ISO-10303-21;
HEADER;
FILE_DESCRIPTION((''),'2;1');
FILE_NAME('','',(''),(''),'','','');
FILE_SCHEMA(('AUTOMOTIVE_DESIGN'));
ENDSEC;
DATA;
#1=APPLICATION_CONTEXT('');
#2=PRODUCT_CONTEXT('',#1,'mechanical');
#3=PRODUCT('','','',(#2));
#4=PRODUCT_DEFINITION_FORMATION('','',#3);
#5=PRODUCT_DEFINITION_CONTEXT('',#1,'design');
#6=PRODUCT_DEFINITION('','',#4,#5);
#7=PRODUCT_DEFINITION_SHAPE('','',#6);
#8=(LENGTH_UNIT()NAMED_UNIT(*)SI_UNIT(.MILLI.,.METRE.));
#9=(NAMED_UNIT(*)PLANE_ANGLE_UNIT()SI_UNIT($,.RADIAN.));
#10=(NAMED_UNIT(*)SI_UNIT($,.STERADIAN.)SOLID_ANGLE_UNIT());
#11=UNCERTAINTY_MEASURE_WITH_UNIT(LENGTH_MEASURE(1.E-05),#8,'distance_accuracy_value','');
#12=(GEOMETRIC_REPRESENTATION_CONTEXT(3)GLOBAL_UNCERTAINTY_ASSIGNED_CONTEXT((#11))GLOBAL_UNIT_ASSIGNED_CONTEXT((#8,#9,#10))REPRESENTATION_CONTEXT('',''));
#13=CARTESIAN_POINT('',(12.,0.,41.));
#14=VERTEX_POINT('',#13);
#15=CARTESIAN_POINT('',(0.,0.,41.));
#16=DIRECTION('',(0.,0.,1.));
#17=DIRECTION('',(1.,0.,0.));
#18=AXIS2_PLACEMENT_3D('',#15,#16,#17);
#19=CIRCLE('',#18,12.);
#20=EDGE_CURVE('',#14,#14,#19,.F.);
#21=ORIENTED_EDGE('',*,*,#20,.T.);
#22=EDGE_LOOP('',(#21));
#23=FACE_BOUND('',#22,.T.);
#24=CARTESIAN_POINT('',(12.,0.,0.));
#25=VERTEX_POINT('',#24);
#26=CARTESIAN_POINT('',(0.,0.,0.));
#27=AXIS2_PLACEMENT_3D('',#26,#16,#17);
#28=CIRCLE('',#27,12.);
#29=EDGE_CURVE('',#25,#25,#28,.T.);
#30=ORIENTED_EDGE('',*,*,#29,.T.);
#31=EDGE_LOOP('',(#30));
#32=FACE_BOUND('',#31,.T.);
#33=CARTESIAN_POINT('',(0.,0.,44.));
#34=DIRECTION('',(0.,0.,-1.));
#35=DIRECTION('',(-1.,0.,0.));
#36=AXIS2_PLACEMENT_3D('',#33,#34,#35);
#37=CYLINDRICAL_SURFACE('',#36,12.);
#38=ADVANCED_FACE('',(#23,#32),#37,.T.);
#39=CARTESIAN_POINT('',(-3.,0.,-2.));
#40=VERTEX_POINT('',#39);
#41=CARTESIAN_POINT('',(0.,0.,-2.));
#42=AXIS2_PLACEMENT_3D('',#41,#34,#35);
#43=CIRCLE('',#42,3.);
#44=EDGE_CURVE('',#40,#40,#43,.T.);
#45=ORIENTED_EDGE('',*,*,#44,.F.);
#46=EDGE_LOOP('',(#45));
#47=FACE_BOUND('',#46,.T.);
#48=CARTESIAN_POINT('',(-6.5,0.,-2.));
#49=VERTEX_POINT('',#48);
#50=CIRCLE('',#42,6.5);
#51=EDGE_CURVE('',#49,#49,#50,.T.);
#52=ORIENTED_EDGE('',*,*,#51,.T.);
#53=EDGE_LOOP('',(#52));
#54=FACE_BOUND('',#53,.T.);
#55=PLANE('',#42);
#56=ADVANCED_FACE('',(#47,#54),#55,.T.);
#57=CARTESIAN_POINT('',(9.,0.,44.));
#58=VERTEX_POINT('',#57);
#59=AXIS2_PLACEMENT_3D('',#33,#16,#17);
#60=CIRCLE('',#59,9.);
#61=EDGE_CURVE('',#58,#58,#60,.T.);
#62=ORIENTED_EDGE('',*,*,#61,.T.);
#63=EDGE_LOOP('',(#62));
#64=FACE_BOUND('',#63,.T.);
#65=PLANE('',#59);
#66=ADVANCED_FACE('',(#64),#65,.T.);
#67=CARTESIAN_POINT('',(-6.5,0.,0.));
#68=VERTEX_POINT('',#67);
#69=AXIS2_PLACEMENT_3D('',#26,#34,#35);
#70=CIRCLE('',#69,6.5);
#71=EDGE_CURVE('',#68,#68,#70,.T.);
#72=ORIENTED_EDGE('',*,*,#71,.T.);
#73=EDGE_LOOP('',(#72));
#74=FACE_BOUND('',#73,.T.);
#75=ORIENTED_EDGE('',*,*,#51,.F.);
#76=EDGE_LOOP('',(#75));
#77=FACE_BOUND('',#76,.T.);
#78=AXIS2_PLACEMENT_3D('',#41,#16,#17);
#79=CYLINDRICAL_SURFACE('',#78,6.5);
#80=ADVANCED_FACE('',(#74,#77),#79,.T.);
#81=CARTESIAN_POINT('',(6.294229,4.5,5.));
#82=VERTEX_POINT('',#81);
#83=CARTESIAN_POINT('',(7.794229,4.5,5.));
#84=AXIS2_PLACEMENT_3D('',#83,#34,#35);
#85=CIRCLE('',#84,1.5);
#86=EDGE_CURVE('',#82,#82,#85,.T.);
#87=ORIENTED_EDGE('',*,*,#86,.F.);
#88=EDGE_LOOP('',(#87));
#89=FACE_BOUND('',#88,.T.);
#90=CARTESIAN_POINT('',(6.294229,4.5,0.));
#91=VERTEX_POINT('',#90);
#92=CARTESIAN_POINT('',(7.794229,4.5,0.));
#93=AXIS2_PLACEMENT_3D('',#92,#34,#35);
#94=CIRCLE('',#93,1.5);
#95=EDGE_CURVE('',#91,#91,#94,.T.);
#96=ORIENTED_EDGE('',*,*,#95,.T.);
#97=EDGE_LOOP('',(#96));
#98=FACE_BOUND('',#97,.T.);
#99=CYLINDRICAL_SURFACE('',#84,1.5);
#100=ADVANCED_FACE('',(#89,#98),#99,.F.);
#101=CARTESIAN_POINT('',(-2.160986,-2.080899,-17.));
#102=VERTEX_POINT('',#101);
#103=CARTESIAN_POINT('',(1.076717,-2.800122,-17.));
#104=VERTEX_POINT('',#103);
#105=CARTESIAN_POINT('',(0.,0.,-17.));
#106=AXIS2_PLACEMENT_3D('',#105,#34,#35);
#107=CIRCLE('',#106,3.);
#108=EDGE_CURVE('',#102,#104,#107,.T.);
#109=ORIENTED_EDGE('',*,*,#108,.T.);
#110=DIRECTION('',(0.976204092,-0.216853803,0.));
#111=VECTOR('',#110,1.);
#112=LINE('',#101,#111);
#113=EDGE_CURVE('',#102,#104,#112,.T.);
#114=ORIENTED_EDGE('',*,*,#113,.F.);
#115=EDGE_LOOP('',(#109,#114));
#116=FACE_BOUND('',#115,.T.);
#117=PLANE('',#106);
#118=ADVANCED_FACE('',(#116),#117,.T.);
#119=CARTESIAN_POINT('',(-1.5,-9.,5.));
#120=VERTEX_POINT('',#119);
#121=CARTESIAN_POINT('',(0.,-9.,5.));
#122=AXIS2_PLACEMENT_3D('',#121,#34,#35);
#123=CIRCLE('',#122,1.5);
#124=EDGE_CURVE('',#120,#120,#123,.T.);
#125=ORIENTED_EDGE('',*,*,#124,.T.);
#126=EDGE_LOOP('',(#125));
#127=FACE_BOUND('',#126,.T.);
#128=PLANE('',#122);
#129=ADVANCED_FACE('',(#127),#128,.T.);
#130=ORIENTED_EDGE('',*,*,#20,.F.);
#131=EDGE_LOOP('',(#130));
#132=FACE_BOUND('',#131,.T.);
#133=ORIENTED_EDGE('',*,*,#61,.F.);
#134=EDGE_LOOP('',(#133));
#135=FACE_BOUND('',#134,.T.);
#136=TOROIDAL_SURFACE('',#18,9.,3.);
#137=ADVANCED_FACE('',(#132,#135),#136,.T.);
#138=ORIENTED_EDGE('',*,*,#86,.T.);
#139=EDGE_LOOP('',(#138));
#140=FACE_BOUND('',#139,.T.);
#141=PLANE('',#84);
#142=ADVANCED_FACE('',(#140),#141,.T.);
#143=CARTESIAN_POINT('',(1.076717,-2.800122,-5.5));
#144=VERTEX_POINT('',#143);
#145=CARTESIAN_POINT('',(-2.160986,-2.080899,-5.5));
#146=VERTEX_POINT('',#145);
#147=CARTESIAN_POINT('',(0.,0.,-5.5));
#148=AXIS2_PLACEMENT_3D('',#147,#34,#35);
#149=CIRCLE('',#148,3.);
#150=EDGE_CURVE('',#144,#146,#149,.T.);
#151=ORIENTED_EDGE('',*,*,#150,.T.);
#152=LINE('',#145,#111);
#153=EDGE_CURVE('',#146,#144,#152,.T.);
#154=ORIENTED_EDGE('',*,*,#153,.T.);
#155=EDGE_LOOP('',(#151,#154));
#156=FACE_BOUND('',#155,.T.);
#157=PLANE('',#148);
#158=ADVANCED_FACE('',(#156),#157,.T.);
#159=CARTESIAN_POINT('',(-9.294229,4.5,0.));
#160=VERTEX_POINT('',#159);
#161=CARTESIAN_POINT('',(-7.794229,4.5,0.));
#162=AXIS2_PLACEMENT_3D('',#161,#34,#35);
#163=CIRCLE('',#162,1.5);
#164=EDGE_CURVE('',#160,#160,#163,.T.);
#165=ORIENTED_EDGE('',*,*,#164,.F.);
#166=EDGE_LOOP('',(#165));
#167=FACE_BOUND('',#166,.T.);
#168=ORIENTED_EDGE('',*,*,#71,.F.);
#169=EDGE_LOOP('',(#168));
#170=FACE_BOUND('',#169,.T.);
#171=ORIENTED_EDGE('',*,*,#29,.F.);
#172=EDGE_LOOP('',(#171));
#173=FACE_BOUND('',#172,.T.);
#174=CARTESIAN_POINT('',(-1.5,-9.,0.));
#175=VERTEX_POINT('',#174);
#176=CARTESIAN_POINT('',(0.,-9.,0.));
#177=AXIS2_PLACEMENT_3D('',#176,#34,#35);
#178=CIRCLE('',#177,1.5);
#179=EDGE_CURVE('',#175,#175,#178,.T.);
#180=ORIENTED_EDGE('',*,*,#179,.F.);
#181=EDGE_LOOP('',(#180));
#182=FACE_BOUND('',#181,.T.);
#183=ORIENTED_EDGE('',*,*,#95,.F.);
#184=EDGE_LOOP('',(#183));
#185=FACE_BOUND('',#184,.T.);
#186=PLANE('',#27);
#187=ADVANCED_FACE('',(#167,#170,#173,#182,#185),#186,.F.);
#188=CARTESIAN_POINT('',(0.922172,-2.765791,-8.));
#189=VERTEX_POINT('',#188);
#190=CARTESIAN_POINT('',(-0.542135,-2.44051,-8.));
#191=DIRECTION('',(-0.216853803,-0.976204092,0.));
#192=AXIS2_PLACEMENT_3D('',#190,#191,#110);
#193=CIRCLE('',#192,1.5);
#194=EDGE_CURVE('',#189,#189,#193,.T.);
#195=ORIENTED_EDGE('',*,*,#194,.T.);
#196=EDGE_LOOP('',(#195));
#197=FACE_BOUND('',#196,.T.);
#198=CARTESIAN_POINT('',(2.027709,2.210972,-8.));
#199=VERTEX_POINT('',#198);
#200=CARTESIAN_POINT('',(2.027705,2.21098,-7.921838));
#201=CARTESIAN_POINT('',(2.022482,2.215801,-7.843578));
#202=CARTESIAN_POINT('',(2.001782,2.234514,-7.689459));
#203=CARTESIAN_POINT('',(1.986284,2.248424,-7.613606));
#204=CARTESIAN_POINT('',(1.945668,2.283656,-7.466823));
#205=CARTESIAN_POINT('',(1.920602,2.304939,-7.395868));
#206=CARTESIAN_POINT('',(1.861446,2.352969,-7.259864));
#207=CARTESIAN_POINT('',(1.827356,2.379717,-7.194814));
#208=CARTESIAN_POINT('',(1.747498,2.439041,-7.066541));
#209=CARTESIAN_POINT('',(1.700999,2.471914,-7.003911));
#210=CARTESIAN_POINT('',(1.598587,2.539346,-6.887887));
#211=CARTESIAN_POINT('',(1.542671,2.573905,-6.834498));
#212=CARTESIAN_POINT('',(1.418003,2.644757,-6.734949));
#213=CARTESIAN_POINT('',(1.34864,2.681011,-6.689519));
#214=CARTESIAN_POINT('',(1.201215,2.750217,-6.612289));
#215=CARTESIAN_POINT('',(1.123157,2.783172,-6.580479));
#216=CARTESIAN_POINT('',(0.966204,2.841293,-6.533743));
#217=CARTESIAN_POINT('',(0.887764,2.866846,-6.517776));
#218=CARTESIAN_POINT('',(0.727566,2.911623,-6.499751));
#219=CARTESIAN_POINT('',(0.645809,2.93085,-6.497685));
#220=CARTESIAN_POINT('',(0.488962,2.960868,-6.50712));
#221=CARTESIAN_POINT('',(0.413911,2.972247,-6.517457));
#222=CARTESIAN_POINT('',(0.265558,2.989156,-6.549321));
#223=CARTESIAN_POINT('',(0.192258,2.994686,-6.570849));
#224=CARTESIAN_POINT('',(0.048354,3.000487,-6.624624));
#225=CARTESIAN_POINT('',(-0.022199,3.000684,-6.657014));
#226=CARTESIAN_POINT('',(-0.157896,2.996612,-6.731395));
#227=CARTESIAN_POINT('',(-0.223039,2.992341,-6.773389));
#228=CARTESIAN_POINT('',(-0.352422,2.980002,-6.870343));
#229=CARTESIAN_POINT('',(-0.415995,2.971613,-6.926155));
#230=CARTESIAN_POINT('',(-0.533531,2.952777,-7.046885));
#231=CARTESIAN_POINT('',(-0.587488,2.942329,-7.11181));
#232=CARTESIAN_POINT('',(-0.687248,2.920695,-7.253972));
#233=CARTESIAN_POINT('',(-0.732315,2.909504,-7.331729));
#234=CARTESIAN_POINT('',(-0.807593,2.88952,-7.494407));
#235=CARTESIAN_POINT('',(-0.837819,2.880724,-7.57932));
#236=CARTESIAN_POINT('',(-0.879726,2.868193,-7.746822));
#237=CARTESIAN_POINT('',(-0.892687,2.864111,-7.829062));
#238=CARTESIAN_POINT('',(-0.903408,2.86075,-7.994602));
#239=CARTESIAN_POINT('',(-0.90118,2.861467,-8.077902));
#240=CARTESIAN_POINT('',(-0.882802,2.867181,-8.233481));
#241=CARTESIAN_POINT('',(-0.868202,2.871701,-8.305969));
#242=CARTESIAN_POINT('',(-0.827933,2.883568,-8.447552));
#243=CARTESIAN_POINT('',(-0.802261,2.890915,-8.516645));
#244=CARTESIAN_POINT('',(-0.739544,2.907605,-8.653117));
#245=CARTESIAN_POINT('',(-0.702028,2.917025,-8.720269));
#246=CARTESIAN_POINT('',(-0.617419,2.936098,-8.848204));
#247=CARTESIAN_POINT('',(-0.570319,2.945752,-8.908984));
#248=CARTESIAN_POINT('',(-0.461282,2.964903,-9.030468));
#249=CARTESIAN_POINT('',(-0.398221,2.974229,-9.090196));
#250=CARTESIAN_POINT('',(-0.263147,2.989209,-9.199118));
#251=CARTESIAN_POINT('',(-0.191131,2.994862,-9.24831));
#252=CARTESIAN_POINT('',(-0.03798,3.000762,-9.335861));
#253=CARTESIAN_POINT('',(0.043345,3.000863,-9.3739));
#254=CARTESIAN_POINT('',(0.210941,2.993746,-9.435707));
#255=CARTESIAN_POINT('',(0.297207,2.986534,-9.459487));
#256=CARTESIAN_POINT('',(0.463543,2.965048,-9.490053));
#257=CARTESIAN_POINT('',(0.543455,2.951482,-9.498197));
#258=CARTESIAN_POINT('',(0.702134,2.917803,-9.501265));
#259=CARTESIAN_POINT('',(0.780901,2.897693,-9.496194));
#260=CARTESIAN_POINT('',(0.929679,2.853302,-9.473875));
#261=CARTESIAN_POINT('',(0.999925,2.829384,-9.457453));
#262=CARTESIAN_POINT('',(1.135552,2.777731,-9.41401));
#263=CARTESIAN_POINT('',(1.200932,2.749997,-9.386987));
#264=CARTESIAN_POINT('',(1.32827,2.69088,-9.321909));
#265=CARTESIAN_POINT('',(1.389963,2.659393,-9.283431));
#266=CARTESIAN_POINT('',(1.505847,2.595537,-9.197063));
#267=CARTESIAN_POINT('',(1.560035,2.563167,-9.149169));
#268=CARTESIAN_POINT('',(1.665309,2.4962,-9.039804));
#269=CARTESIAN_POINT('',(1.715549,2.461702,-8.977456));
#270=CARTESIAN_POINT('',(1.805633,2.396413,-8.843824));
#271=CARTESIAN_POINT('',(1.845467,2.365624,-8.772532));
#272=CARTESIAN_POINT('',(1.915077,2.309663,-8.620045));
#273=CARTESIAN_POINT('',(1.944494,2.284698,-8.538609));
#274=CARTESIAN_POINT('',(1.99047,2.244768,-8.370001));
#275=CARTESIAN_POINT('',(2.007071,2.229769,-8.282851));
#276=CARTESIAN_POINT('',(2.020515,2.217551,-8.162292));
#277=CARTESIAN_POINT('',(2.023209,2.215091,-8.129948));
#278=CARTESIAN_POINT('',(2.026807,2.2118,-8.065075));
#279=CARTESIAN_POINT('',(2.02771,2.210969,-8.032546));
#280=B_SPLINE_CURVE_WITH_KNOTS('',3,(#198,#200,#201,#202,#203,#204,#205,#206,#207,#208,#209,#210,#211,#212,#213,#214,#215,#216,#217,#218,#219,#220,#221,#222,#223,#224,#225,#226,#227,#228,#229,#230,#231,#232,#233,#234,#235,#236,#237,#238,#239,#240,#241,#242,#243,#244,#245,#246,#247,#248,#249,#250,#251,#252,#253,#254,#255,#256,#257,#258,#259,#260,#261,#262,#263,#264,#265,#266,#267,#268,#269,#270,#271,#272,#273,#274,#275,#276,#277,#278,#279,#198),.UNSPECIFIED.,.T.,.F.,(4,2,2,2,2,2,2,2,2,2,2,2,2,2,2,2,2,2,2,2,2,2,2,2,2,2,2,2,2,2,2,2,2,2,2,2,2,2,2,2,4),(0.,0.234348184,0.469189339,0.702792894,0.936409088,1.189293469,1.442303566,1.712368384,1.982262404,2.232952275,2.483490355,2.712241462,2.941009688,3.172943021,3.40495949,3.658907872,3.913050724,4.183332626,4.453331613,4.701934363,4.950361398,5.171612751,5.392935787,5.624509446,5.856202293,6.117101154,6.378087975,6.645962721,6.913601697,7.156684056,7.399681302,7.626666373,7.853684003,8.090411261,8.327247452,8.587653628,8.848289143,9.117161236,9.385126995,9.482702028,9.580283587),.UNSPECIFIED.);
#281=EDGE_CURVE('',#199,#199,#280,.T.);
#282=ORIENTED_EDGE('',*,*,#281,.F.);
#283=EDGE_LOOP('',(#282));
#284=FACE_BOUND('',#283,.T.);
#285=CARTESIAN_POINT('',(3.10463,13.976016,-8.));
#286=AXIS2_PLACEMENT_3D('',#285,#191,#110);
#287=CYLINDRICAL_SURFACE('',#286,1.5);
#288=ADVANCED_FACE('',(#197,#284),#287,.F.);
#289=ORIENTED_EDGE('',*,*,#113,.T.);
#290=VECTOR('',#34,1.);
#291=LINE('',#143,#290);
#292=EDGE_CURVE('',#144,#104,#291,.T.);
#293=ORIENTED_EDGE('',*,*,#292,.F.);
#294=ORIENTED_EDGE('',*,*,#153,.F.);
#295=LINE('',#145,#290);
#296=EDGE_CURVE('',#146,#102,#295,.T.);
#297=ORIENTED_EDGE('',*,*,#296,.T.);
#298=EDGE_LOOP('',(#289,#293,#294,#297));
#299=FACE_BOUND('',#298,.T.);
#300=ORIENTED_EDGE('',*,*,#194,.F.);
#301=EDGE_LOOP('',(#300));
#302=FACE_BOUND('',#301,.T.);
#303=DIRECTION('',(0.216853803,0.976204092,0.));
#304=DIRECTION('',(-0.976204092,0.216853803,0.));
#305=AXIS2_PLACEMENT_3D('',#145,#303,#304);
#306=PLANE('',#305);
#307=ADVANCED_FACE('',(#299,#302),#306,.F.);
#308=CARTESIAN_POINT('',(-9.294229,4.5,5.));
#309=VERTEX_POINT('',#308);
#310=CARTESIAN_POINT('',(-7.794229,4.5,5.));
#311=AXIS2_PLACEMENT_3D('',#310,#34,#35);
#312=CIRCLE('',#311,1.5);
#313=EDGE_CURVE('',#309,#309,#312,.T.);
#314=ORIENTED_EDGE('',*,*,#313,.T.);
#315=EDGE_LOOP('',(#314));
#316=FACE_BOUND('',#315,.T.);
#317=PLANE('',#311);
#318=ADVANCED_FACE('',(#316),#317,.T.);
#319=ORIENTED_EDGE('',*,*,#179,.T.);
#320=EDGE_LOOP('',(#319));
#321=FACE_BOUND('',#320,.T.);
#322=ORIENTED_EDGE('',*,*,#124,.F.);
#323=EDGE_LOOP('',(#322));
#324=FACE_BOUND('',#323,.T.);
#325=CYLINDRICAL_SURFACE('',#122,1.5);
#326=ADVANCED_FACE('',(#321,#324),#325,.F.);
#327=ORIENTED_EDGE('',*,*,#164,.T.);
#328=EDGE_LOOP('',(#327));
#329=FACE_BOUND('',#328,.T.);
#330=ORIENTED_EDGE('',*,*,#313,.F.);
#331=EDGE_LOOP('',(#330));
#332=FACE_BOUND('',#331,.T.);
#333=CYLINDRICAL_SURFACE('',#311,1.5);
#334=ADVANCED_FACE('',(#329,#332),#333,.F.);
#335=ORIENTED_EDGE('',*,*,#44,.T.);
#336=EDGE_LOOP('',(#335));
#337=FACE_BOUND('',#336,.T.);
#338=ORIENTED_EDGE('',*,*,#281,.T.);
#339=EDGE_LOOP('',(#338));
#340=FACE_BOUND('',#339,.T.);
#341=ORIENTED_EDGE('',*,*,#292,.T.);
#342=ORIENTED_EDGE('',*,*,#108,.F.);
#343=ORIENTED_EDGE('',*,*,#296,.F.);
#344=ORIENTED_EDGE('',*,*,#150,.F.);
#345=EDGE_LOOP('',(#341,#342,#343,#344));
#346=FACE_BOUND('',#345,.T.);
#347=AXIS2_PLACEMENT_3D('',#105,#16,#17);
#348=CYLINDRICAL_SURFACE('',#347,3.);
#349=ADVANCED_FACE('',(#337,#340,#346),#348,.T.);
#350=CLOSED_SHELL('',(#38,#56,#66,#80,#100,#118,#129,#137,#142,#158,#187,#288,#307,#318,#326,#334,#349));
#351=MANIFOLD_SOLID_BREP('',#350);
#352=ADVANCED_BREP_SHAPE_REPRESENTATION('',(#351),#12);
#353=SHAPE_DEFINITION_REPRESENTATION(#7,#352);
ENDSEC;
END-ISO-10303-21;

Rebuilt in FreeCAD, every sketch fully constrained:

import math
import FreeCAD as App
import Part
import Sketcher
from FreeCAD import Vector
Q = App.Units.Quantity


def edges_at(feature, points):
    """Names of the edges that pass closest to the given points."""
    edges = feature.Shape.Edges
    near = lambda p: min(range(len(edges)), key=lambda i: edges[i].distToShape(Part.Vertex(*p))[0])
    return sorted({f"Edge{near(p) + 1}" for p in points})

doc = App.newDocument("Part")
body = doc.addObject("PartDesign::Body", "Body")

# Sketch on XY plane
sketch1 = doc.addObject("Sketcher::SketchObject", "Sketch")
body.addObject(sketch1)
sketch1.AttachmentSupport = (doc.XY_Plane, [""])
sketch1.MapMode = "FlatFace"
sketch1.addGeometry(Part.Circle(Vector(0, 0, 0), Vector(0, 0, 1), 12), False)
sketch1.addConstraint([
    Sketcher.Constraint("Coincident", 0, 3, -1, 1),
    Sketcher.Constraint("Diameter", 0, Q("24 mm")),
])
pad1 = doc.addObject("PartDesign::Pad", "Pad")
body.addObject(pad1)
pad1.Profile = sketch1
pad1.Length = 44

# Sketch on XY plane
sketch2 = doc.addObject("Sketcher::SketchObject", "Sketch001")
body.addObject(sketch2)
sketch2.AttachmentSupport = (doc.XY_Plane, [""])
sketch2.MapMode = "FlatFace"
sketch2.addGeometry(Part.Circle(Vector(0, 0, 0), Vector(0, 0, 1), 6), False)
sketch2.addConstraint([
    Sketcher.Constraint("Coincident", 0, 3, -1, 1),
    Sketcher.Constraint("Diameter", 0, Q("13 mm")),
])
pad2 = doc.addObject("PartDesign::Pad", "Pad001")
body.addObject(pad2)
pad2.Profile = sketch2
pad2.Length = 2
pad2.Reversed = True

# Sketch on XY plane
sketch3 = doc.addObject("Sketcher::SketchObject", "Sketch002")
body.addObject(sketch3)
sketch3.AttachmentSupport = (doc.XY_Plane, [""])
sketch3.MapMode = "FlatFace"
sketch3.AttachmentOffset = App.Placement(Vector(0, 0, -2), App.Rotation())
sketch3.addGeometry(Part.Circle(Vector(0, 0, 0), Vector(0, 0, 1), 3), False)
sketch3.addConstraint([
    Sketcher.Constraint("Coincident", 0, 3, -1, 1),
    Sketcher.Constraint("Diameter", 0, Q("6 mm")),
])
pad3 = doc.addObject("PartDesign::Pad", "Pad002")
body.addObject(pad3)
pad3.Profile = sketch3
pad3.Length = 15
pad3.Reversed = True

# Sketch on XY plane
sketch4 = doc.addObject("Sketcher::SketchObject", "Sketch003")
body.addObject(sketch4)
sketch4.AttachmentSupport = (doc.XY_Plane, [""])
sketch4.MapMode = "FlatFace"
sketch4.addGeometry([
    Part.Circle(Vector(0, -9, 0), Vector(0, 0, 1), 1.5),
    Part.Circle(Vector(7.8, 4.5, 0), Vector(0, 0, 1), 1.5),
    Part.Circle(Vector(-7.8, 4.5, 0), Vector(0, 0, 1), 1.5),
], False)
sketch4.addConstraint([
    Sketcher.Constraint("Equal", 0, 1),
    Sketcher.Constraint("Equal", 1, 2),
    Sketcher.Constraint("Symmetric", 1, 3, 2, 3, -2),
    Sketcher.Constraint("PointOnObject", 0, 3, -2),
    Sketcher.Constraint("Diameter", 0, Q("3 mm")),
    Sketcher.Constraint("DistanceY", 0, 3, -1, 1, Q("9 mm")),
    Sketcher.Constraint("DistanceY", -1, 1, 1, 3, Q("4.5 mm")),
    Sketcher.Constraint("DistanceX", -1, 1, 1, 3, Q("7.794229 mm")),
])
pocket1 = doc.addObject("PartDesign::Pocket", "Pocket")
body.addObject(pocket1)
pocket1.Profile = sketch4
pocket1.Length = 5
pocket1.Reversed = True

# Sketch on XY plane
sketch5 = doc.addObject("Sketcher::SketchObject", "Sketch004")
body.addObject(sketch5)
sketch5.AttachmentSupport = (doc.XY_Plane, [""])
sketch5.MapMode = "FlatFace"
sketch5.AttachmentOffset = App.Placement(Vector(0, 0, -5.5), App.Rotation())
sketch5.addGeometry([
    Part.LineSegment(Vector(-2.2, -2.1, 0), Vector(1.1, -2.8, 0)),
    Part.ArcOfCircle(Part.Circle(Vector(0, 0, 0), Vector(0, 0, 1), 3), math.radians(-136), math.radians(-69)),
], False)
sketch5.addConstraint([
    Sketcher.Constraint("Coincident", 0, 1, 1, 1),
    Sketcher.Constraint("Coincident", 1, 2, 0, 2),
    Sketcher.Constraint("Coincident", 1, 3, -1, 1),
    Sketcher.Constraint("Radius", 1, Q("3 mm")),
    Sketcher.Constraint("DistanceY", 0, 1, -1, 1, Q("2.080899 mm")),
    Sketcher.Constraint("DistanceY", 1, 2, -1, 1, Q("2.800122 mm")),
])
pocket2 = doc.addObject("PartDesign::Pocket", "Pocket001")
body.addObject(pocket2)
pocket2.Profile = sketch5
pocket2.Length = 11.5

# Sketch on an angled plane
sketch6 = doc.addObject("Sketcher::SketchObject", "Sketch005")
body.addObject(sketch6)
sketch6.Placement = App.Placement(Vector(-0.542135, -2.44051, 0), App.Rotation(Vector(-0.976204092, 0.216853803, 0), Vector(0, 0, -1.000000001), Vector(-0.216853803, -0.976204092, 0), "ZXY"))
sketch6.addGeometry(Part.Circle(Vector(0, 8, 0), Vector(0, 0, 1), 1.5), False)
sketch6.addConstraint([
    Sketcher.Constraint("PointOnObject", 0, 3, -2),
    Sketcher.Constraint("Diameter", 0, Q("3 mm")),
    Sketcher.Constraint("DistanceY", -1, 1, 0, 3, Q("8 mm")),
])
pocket3 = doc.addObject("PartDesign::Pocket", "Pocket002")
body.addObject(pocket3)
pocket3.Profile = sketch6
pocket3.Type = "ThroughAll"
doc.recompute()

fillet = doc.addObject("PartDesign::Fillet", "Fillet")
body.addObject(fillet)
fillet.Base = (pocket3, edges_at(pocket3, [(-12, 0, 44)]))
fillet.Radius = 3

doc.recompute()
